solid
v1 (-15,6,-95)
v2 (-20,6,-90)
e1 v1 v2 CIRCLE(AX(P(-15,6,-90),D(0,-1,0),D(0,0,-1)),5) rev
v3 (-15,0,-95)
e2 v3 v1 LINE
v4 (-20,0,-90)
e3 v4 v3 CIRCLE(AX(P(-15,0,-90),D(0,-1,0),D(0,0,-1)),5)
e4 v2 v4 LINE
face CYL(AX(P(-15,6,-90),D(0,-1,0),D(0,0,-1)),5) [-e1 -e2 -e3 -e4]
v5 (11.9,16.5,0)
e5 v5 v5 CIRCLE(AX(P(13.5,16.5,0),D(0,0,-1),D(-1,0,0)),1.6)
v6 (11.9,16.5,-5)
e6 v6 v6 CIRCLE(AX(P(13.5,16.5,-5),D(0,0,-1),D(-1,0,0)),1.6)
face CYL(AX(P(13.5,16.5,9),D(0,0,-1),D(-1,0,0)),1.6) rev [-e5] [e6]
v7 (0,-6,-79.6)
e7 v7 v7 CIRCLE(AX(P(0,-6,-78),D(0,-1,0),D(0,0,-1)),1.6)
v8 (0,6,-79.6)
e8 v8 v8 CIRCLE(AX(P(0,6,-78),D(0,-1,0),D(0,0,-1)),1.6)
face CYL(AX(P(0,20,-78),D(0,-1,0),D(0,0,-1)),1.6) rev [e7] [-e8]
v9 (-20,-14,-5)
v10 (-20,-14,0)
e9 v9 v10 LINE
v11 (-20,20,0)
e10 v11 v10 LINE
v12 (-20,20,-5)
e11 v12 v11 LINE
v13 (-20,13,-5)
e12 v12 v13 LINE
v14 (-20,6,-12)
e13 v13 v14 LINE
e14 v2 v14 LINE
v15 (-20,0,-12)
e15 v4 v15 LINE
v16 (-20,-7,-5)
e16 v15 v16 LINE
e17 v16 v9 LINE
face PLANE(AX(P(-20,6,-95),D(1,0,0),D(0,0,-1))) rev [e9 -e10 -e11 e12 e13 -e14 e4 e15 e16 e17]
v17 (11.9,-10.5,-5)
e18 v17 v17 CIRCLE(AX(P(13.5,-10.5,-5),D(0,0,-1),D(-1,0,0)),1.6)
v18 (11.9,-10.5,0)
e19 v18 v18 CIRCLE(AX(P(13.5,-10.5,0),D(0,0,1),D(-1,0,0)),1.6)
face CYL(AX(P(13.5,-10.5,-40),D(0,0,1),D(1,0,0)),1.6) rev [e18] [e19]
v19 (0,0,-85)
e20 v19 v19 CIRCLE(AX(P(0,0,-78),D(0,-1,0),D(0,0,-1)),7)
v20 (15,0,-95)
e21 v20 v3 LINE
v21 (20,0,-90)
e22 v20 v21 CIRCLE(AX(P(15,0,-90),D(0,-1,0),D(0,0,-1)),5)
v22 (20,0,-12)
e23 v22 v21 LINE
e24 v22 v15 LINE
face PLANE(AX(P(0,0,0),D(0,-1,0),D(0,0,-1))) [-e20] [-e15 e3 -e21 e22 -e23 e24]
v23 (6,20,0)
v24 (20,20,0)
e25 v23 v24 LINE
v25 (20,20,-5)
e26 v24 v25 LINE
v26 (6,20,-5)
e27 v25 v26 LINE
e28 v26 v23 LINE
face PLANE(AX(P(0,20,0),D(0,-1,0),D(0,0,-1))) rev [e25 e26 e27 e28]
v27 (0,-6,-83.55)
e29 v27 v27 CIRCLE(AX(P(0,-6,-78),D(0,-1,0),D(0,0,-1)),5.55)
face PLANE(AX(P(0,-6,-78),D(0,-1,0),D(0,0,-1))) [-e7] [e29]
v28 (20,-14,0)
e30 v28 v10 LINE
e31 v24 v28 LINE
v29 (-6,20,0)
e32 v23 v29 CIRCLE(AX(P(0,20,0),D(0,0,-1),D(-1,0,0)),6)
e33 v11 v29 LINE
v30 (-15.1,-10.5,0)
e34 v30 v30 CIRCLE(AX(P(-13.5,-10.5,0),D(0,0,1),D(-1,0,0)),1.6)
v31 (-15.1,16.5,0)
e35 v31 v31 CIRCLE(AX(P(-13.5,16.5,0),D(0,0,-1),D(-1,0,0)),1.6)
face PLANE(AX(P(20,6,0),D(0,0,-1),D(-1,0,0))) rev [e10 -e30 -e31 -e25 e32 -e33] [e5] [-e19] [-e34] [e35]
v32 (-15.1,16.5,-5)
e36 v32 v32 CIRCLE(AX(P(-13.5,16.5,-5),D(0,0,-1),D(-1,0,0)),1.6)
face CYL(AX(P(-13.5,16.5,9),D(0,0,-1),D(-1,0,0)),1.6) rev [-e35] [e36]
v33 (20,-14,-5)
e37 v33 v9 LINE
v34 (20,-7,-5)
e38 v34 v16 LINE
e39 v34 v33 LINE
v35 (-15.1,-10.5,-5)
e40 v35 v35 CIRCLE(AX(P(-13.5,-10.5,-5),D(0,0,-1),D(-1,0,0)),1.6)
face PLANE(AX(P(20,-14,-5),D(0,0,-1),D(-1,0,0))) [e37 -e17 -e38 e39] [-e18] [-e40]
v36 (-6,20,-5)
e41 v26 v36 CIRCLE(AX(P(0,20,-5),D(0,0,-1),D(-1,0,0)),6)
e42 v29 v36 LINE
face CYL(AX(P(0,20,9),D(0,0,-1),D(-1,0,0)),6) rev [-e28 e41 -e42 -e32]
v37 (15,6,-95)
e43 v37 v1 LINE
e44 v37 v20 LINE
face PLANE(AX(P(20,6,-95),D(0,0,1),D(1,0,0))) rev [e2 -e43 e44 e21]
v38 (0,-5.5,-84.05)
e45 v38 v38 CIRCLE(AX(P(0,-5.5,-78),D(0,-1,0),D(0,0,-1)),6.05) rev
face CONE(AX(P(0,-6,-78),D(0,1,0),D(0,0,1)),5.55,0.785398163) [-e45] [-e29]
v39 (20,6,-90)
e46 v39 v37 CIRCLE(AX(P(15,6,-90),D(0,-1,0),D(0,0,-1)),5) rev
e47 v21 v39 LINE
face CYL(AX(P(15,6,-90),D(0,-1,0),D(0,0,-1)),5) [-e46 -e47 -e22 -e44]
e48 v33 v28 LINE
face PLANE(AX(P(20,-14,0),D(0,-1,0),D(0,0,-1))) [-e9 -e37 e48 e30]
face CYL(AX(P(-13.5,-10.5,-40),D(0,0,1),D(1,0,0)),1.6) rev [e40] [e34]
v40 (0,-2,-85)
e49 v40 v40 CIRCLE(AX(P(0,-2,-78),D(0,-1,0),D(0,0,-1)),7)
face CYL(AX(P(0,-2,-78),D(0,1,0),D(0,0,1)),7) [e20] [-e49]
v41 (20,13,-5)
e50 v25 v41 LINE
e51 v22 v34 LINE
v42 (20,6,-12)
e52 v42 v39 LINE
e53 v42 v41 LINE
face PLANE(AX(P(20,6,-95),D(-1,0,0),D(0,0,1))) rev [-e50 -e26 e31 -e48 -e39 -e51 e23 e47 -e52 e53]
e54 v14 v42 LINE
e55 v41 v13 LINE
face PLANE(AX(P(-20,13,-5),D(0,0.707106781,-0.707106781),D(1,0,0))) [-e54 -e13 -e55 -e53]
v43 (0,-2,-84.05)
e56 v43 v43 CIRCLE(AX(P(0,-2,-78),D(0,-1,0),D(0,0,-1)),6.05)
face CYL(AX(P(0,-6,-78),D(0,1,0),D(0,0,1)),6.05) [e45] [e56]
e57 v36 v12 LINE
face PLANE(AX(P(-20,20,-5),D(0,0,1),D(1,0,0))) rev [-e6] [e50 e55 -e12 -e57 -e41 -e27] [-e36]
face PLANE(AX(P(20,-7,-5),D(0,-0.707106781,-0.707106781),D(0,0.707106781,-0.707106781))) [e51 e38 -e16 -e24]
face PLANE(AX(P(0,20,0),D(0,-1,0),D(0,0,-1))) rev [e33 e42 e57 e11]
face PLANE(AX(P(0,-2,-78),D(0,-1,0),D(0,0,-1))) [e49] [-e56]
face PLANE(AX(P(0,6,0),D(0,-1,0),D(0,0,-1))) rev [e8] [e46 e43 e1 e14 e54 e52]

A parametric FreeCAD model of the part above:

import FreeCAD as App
import Part
import Sketcher

V = App.Vector
Q = App.Units.Quantity


def edges_at(feature, points):
    """Names of the edges that pass closest to the given points."""
    edges = feature.Shape.Edges
    near = lambda p: min(range(len(edges)), key=lambda i: edges[i].distToShape(Part.Vertex(*p))[0])
    return sorted({f"Edge{near(p) + 1}" for p in points})

doc = App.newDocument("Part")
body = doc.addObject("PartDesign::Body", "Body")

# Sketch on XZ plane
sketch1 = doc.addObject("Sketcher::SketchObject", "Sketch")
body.addObject(sketch1)
sketch1.AttachmentSupport = (doc.XZ_Plane, [""])
sketch1.MapMode = "FlatFace"
sketch1.addGeometry([
    Part.LineSegment(V(-20, -95, 0), V(-20, 0, 0)),
    Part.LineSegment(V(-20, 0, 0), V(20, 0, 0)),
    Part.LineSegment(V(20, 0, 0), V(20, -95, 0)),
    Part.LineSegment(V(20, -95, 0), V(-20, -95, 0)),
], False)
sketch1.addConstraint([
    Sketcher.Constraint("Coincident", 0, 2, 1, 1),
    Sketcher.Constraint("Coincident", 1, 2, 2, 1),
    Sketcher.Constraint("Coincident", 2, 2, 3, 1),
    Sketcher.Constraint("Coincident", 3, 2, 0, 1),
    Sketcher.Constraint("Vertical", 0),
    Sketcher.Constraint("Horizontal", 1),
    Sketcher.Constraint("Vertical", 2),
    Sketcher.Constraint("Horizontal", 3),
    Sketcher.Constraint("Symmetric", 0, 2, 1, 2, -1, 1),
    Sketcher.Constraint("DistanceX", 1, 1, 1, 2, Q("40 mm")),
    Sketcher.Constraint("DistanceY", 0, 1, 0, 2, Q("95 mm")),
])
pad1 = doc.addObject("PartDesign::Pad", "Pad")
body.addObject(pad1)
pad1.Profile = sketch1
pad1.Length = 6
pad1.Reversed = True

# Sketch on XZ plane
sketch2 = doc.addObject("Sketcher::SketchObject", "Sketch001")
body.addObject(sketch2)
sketch2.AttachmentSupport = (doc.XZ_Plane, [""])
sketch2.MapMode = "FlatFace"
sketch2.AttachmentOffset = App.Placement(V(0, 0, -6), App.Rotation())
sketch2.addGeometry([
    Part.LineSegment(V(-20, -5, 0), V(-20, 0, 0)),
    Part.LineSegment(V(-20, 0, 0), V(20, 0, 0)),
    Part.LineSegment(V(20, 0, 0), V(20, -5, 0)),
    Part.LineSegment(V(20, -5, 0), V(-20, -5, 0)),
], False)
sketch2.addConstraint([
    Sketcher.Constraint("Coincident", 0, 2, 1, 1),
    Sketcher.Constraint("Coincident", 1, 2, 2, 1),
    Sketcher.Constraint("Coincident", 2, 2, 3, 1),
    Sketcher.Constraint("Coincident", 3, 2, 0, 1),
    Sketcher.Constraint("Vertical", 0),
    Sketcher.Constraint("Horizontal", 1),
    Sketcher.Constraint("Vertical", 2),
    Sketcher.Constraint("Horizontal", 3),
    Sketcher.Constraint("Symmetric", 0, 2, 1, 2, -1, 1),
    Sketcher.Constraint("DistanceX", 1, 1, 1, 2, Q("40 mm")),
    Sketcher.Constraint("DistanceY", 0, 1, 0, 2, Q("5 mm")),
])
pad2 = doc.addObject("PartDesign::Pad", "Pad001")
body.addObject(pad2)
pad2.Profile = sketch2
pad2.Length = 14
pad2.Reversed = True

# Sketch on XY plane
sketch3 = doc.addObject("Sketcher::SketchObject", "Sketch002")
body.addObject(sketch3)
sketch3.AttachmentSupport = (doc.XY_Plane, [""])
sketch3.MapMode = "FlatFace"
sketch3.AttachmentOffset = App.Placement(V(0, 0, -5), App.Rotation())
sketch3.addGeometry(Part.Circle(V(0, 20, 0), V(0, 0, 1), 6), False)
sketch3.addConstraint([
    Sketcher.Constraint("PointOnObject", 0, 3, -2),
    Sketcher.Constraint("Diameter", 0, Q("12 mm")),
    Sketcher.Constraint("DistanceY", -1, 1, 0, 3, Q("20 mm")),
])
pocket1 = doc.addObject("PartDesign::Pocket", "Pocket")
body.addObject(pocket1)
pocket1.Profile = sketch3
pocket1.Length = 14
pocket1.Reversed = True

# Sketch on XY plane
sketch4 = doc.addObject("Sketcher::SketchObject", "Sketch003")
body.addObject(sketch4)
sketch4.AttachmentSupport = (doc.XY_Plane, [""])
sketch4.MapMode = "FlatFace"
sketch4.AttachmentOffset = App.Placement(V(0, 0, -5), App.Rotation())
sketch4.addGeometry([
    Part.Circle(V(13.5, 16.5, 0), V(0, 0, 1), 1.6),
    Part.Circle(V(-13.5, 16.5, 0), V(0, 0, 1), 1.6),
], False)
sketch4.addConstraint([
    Sketcher.Constraint("Equal", 0, 1),
    Sketcher.Constraint("Symmetric", 0, 3, 1, 3, -2),
    Sketcher.Constraint("Diameter", 0, Q("3.2 mm")),
    Sketcher.Constraint("DistanceX", 1, 3, 0, 3, Q("27 mm")),
    Sketcher.Constraint("DistanceY", -1, 1, 0, 3, Q("16.5 mm")),
])
pocket2 = doc.addObject("PartDesign::Pocket", "Pocket001")
body.addObject(pocket2)
pocket2.Profile = sketch4
pocket2.Length = 14
pocket2.Reversed = True
doc.recompute()

chamfer = doc.addObject("PartDesign::Chamfer", "Chamfer")
body.addObject(chamfer)
chamfer.Base = (pocket2, edges_at(pocket2, [(0, 6, -5)]))
chamfer.Size = 7
doc.recompute()

fillet = doc.addObject("PartDesign::Fillet", "Fillet")
body.addObject(fillet)
fillet.Base = (chamfer, edges_at(chamfer, [(-20, 3, -95), (20, 3, -95)]))
fillet.Radius = 5

# Sketch on YZ plane
sketch5 = doc.addObject("Sketcher::SketchObject", "Sketch004")
body.addObject(sketch5)
sketch5.AttachmentSupport = (doc.YZ_Plane, [""])
sketch5.MapMode = "FlatFace"
sketch5.AttachmentOffset = App.Placement(V(0, 0, -20), App.Rotation())
sketch5.addGeometry([
    Part.LineSegment(V(-14, -5, 0), V(-14, 0, 0)),  # 0
    Part.LineSegment(V(-14, 0, 0), V(0, 0, 0)),  # 1
    Part.LineSegment(V(0, 0, 0), V(0, -12, 0)),  # 2
    Part.LineSegment(V(0, -12, 0), V(-7, -5, 0)),  # 3
    Part.LineSegment(V(-7, -5, 0), V(-14, -5, 0)),  # 4
], False)
sketch5.addConstraint([
    Sketcher.Constraint("Coincident", 0, 2, 1, 1),
    Sketcher.Constraint("Coincident", 1, 2, 2, 1),
    Sketcher.Constraint("Coincident", 2, 2, 3, 1),
    Sketcher.Constraint("Coincident", 3, 2, 4, 1),
    Sketcher.Constraint("Coincident", 4, 2, 0, 1),
    Sketcher.Constraint("Vertical", 0),
    Sketcher.Constraint("Horizontal", 1),
    Sketcher.Constraint("Vertical", 2),
    Sketcher.Constraint("Horizontal", 4),
    Sketcher.Constraint("Coincident", 1, 2, -1, 1),
    Sketcher.Constraint("DistanceX", 1, 1, 1, 2, Q("14 mm")),
    Sketcher.Constraint("DistanceX", 4, 2, 4, 1, Q("7 mm")),
    Sketcher.Constraint("DistanceY", 0, 1, 0, 2, Q("5 mm")),
    Sketcher.Constraint("DistanceY", 2, 2, 2, 1, Q("12 mm")),
])
pad3 = doc.addObject("PartDesign::Pad", "Pad002")
body.addObject(pad3)
pad3.Profile = sketch5
pad3.Length = 40

# Sketch on XY plane
sketch6 = doc.addObject("Sketcher::SketchObject", "Sketch005")
body.addObject(sketch6)
sketch6.AttachmentSupport = (doc.XY_Plane, [""])
sketch6.MapMode = "FlatFace"
sketch6.addGeometry([
    Part.Circle(V(13.5, 16.5, 0), V(0, 0, 1), 1.6),
    Part.Circle(V(-13.5, 16.5, 0), V(0, 0, 1), 1.6),
    Part.Circle(V(13.5, -10.5, 0), V(0, 0, 1), 1.6),
    Part.Circle(V(-13.5, -10.5, 0), V(0, 0, 1), 1.6),
], False)
sketch6.addConstraint([
    Sketcher.Constraint("Equal", 0, 1),
    Sketcher.Constraint("Equal", 1, 2),
    Sketcher.Constraint("Equal", 2, 3),
    Sketcher.Constraint("Symmetric", 0, 3, 1, 3, -2),
    Sketcher.Constraint("Symmetric", 2, 3, 3, 3, -2),
    Sketcher.Constraint("Vertical", 0, 3, 2, 3),
    Sketcher.Constraint("Diameter", 0, Q("3.2 mm")),
    Sketcher.Constraint("DistanceX", 1, 3, 0, 3, Q("27 mm")),
    Sketcher.Constraint("DistanceY", 2, 3, 0, 3, Q("27 mm")),
    Sketcher.Constraint("DistanceY", -1, 1, 0, 3, Q("16.5 mm")),
])
pocket3 = doc.addObject("PartDesign::Pocket", "Pocket002")
body.addObject(pocket3)
pocket3.Profile = sketch6
pocket3.Length = 40

# Sketch on XZ plane
sketch7 = doc.addObject("Sketcher::SketchObject", "Sketch006")
body.addObject(sketch7)
sketch7.AttachmentSupport = (doc.XZ_Plane, [""])
sketch7.MapMode = "FlatFace"
sketch7.addGeometry(Part.Circle(V(0, -78, 0), V(0, 0, 1), 7), False)
sketch7.addConstraint([
    Sketcher.Constraint("PointOnObject", 0, 3, -2),
    Sketcher.Constraint("Diameter", 0, Q("14 mm")),
    Sketcher.Constraint("DistanceY", 0, 3, -1, 1, Q("78 mm")),
])
pad4 = doc.addObject("PartDesign::Pad", "Pad003")
body.addObject(pad4)
pad4.Profile = sketch7
pad4.Length = 2

# Sketch on XZ plane
sketch8 = doc.addObject("Sketcher::SketchObject", "Sketch007")
body.addObject(sketch8)
sketch8.AttachmentSupport = (doc.XZ_Plane, [""])
sketch8.MapMode = "FlatFace"
sketch8.AttachmentOffset = App.Placement(V(0, 0, 2), App.Rotation())
sketch8.addGeometry(Part.Circle(V(0, -78, 0), V(0, 0, 1), 6), False)
sketch8.addConstraint([
    Sketcher.Constraint("PointOnObject", 0, 3, -2),
    Sketcher.Constraint("Diameter", 0, Q("12.1 mm")),
    Sketcher.Constraint("DistanceY", 0, 3, -1, 1, Q("78 mm")),
])
pad5 = doc.addObject("PartDesign::Pad", "Pad004")
body.addObject(pad5)
pad5.Profile = sketch8
pad5.Length = 4
doc.recompute()

chamfer2 = doc.addObject("PartDesign::Chamfer", "Chamfer001")
body.addObject(chamfer2)
chamfer2.Base = (pad5, edges_at(pad5, [(-6.05, -6, -78)]))
chamfer2.Size = 0.5

# Sketch on XZ plane
sketch9 = doc.addObject("Sketcher::SketchObject", "Sketch008")
body.addObject(sketch9)
sketch9.AttachmentSupport = (doc.XZ_Plane, [""])
sketch9.MapMode = "FlatFace"
sketch9.AttachmentOffset = App.Placement(V(0, 0, 6), App.Rotation())
sketch9.addGeometry(Part.Circle(V(0, -78, 0), V(0, 0, 1), 1.6), False)
sketch9.addConstraint([
    Sketcher.Constraint("PointOnObject", 0, 3, -2),
    Sketcher.Constraint("Diameter", 0, Q("3.2 mm")),
    Sketcher.Constraint("DistanceY", 0, 3, -1, 1, Q("78 mm")),
])
pocket4 = doc.addObject("PartDesign::Pocket", "Pocket003")
body.addObject(pocket4)
pocket4.Profile = sketch9
pocket4.Type = "ThroughAll"

doc.recompute()
